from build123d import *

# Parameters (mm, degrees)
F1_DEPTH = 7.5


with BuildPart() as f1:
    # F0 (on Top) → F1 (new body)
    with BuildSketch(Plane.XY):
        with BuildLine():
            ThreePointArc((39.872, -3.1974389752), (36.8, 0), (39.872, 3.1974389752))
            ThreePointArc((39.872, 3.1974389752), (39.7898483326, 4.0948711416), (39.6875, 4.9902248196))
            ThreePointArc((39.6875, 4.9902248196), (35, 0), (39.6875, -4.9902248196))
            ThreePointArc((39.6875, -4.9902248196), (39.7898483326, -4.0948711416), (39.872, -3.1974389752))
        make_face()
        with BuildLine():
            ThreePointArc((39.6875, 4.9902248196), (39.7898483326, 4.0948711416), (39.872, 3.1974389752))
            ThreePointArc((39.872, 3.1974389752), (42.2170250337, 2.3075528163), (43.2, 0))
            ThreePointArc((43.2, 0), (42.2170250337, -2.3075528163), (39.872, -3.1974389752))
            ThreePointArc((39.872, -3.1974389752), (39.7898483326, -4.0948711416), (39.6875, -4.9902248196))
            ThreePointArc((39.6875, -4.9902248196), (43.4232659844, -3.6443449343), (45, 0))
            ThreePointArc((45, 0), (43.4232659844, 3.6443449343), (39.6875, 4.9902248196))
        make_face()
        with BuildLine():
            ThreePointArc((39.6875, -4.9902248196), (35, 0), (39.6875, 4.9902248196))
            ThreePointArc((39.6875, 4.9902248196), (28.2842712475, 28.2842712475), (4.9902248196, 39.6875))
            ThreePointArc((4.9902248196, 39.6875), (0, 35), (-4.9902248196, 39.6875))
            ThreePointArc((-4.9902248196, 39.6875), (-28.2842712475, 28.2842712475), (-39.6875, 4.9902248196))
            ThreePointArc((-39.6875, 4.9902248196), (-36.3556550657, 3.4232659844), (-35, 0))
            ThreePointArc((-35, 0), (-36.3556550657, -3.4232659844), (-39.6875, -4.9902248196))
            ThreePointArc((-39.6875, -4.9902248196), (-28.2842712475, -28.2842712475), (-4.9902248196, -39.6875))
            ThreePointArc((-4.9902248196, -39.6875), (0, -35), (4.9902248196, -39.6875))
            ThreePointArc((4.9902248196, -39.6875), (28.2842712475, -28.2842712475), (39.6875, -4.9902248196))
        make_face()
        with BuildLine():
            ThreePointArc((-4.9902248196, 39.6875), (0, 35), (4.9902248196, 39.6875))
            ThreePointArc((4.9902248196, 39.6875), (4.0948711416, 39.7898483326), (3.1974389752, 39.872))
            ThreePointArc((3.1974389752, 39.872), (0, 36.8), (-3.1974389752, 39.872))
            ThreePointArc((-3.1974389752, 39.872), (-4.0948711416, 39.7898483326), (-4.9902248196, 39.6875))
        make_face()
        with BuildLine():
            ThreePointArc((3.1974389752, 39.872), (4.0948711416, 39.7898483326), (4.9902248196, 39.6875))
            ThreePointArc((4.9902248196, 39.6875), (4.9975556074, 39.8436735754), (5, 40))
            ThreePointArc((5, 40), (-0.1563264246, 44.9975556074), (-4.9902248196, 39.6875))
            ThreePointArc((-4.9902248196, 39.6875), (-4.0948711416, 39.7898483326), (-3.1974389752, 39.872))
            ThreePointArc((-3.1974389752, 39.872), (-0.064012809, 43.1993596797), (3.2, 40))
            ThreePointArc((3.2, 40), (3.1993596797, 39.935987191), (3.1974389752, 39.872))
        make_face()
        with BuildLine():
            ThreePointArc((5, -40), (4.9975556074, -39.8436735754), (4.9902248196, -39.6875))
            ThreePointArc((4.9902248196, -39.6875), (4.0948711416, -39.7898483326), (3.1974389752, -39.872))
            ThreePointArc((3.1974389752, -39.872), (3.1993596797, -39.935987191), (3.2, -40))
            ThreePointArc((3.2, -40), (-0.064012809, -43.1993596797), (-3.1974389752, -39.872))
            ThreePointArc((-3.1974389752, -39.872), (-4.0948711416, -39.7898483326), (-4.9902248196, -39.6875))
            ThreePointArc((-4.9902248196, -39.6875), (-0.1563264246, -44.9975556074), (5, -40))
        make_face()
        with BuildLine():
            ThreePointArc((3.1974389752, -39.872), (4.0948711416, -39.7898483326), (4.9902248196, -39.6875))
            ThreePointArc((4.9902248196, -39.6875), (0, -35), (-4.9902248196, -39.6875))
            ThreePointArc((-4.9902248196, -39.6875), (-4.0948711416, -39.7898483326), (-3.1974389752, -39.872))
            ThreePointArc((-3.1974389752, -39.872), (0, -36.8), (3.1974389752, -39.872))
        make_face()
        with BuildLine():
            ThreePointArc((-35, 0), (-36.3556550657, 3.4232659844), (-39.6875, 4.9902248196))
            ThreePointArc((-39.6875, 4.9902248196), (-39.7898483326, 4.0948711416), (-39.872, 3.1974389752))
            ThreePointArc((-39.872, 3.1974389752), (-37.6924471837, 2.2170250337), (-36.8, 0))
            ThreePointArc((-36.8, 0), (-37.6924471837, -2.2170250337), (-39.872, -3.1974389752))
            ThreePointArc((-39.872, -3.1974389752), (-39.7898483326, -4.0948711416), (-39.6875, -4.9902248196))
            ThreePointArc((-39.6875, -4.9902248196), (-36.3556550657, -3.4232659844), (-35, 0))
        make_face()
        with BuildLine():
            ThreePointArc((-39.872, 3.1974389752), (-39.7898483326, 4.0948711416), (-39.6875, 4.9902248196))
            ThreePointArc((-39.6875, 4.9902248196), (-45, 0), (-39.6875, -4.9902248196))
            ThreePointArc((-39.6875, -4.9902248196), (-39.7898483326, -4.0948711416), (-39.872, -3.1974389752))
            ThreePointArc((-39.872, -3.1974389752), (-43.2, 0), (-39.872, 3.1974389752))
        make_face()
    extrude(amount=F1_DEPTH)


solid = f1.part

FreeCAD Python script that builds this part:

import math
import FreeCAD as App
import Part
import Sketcher

V = App.Vector

doc = App.newDocument("Part")
body = doc.addObject("PartDesign::Body", "Body")

# Sketch on XY plane
sketch1 = body.newObject("Sketcher::SketchObject", "Sketch")
sketch1.AttachmentSupport = (doc.getObject("XY_Plane"), [""])
sketch1.MapMode = "FlatFace"
sketch1.addGeometry(Part.ArcOfCircle(Part.Circle(V(40, 0, 0), V(0, 0, 1), 5), math.radians(-94), math.radians(0)), False)
sketch1.addGeometry(Part.ArcOfCircle(Part.Circle(V(40, 0, 0), V(0, 0, 1), 5), math.radians(0), math.radians(94)), False)
sketch1.addGeometry(Part.ArcOfCircle(Part.Circle(V(0, 0, 0), V(0, 0, 1), 40), math.radians(7), math.radians(83)), False)
sketch1.addGeometry(Part.ArcOfCircle(Part.Circle(V(0, 40, 0), V(0, 0, 1), 5), math.radians(-3.58), math.radians(0)), False)
sketch1.addGeometry(Part.ArcOfCircle(Part.Circle(V(0, 40, 0), V(0, 0, 1), 5), math.radians(0), math.radians(184)), False)
sketch1.addGeometry(Part.ArcOfCircle(Part.Circle(V(0, 0, 0), V(0, 0, 1), 40), math.radians(97), math.radians(173)), False)
sketch1.addGeometry(Part.ArcOfCircle(Part.Circle(V(-40, 0, 0), V(0, 0, 1), 5), math.radians(86), math.radians(274)), False)
sketch1.addGeometry(Part.ArcOfCircle(Part.Circle(V(0, 0, 0), V(0, 0, 1), 40), math.radians(-173), math.radians(-97)), False)
sketch1.addGeometry(Part.ArcOfCircle(Part.Circle(V(0, -40, 0), V(0, 0, 1), 5), math.radians(176), math.radians(360)), False)
sketch1.addGeometry(Part.ArcOfCircle(Part.Circle(V(0, -40, 0), V(0, 0, 1), 5), math.radians(0), math.radians(3.58)), False)
sketch1.addGeometry(Part.ArcOfCircle(Part.Circle(V(0, 0, 0), V(0, 0, 1), 40), math.radians(-83), math.radians(-7)), False)
sketch1.addGeometry(Part.ArcOfCircle(Part.Circle(V(40, 0, 0), V(0, 0, 1), 3.2), math.radians(92), math.radians(268)), False)
sketch1.addGeometry(Part.ArcOfCircle(Part.Circle(V(40, 0, 0), V(0, 0, 1), 3.2), math.radians(0), math.radians(92)), False)
sketch1.addGeometry(Part.ArcOfCircle(Part.Circle(V(40, 0, 0), V(0, 0, 1), 3.2), math.radians(-92), math.radians(0)), False)
sketch1.addGeometry(Part.ArcOfCircle(Part.Circle(V(-40, 0, 0), V(0, 0, 1), 3.2), math.radians(0), math.radians(88)), False)
sketch1.addGeometry(Part.ArcOfCircle(Part.Circle(V(-40, 0, 0), V(0, 0, 1), 3.2), math.radians(-88), math.radians(0)), False)
sketch1.addGeometry(Part.ArcOfCircle(Part.Circle(V(-40, 0, 0), V(0, 0, 1), 3.2), math.radians(88), math.radians(272)), False)
sketch1.addGeometry(Part.ArcOfCircle(Part.Circle(V(0, 40, 0), V(0, 0, 1), 3.2), math.radians(-178), math.radians(-2)), False)
sketch1.addGeometry(Part.ArcOfCircle(Part.Circle(V(0, 40, 0), V(0, 0, 1), 3.2), math.radians(0), math.radians(182)), False)
sketch1.addGeometry(Part.ArcOfCircle(Part.Circle(V(0, 40, 0), V(0, 0, 1), 3.2), math.radians(-2.29), math.radians(0)), False)
sketch1.addGeometry(Part.ArcOfCircle(Part.Circle(V(0, -40, 0), V(0, 0, 1), 3.2), math.radians(2), math.radians(178)), False)
sketch1.addGeometry(Part.ArcOfCircle(Part.Circle(V(0, -40, 0), V(0, 0, 1), 3.2), math.radians(0), math.radians(2.29)), False)
sketch1.addGeometry(Part.ArcOfCircle(Part.Circle(V(0, -40, 0), V(0, 0, 1), 3.2), math.radians(178), math.radians(360)), False)
sketch1.addConstraint(Sketcher.Constraint("Tangent", 0, 2, 1, 1))
sketch1.addConstraint(Sketcher.Constraint("Coincident", 1, 2, 2, 1))
sketch1.addConstraint(Sketcher.Constraint("Coincident", 2, 2, 3, 1))
sketch1.addConstraint(Sketcher.Constraint("Tangent", 3, 2, 4, 1))
sketch1.addConstraint(Sketcher.Constraint("Coincident", 4, 2, 5, 1))
sketch1.addConstraint(Sketcher.Constraint("Coincident", 5, 2, 6, 1))
sketch1.addConstraint(Sketcher.Constraint("Coincident", 6, 2, 7, 1))
sketch1.addConstraint(Sketcher.Constraint("Coincident", 7, 2, 8, 1))
sketch1.addConstraint(Sketcher.Constraint("Tangent", 8, 2, 9, 1))
sketch1.addConstraint(Sketcher.Constraint("Coincident", 9, 2, 10, 1))
sketch1.addConstraint(Sketcher.Constraint("Coincident", 10, 2, 0, 1))
sketch1.addConstraint(Sketcher.Constraint("Tangent", 11, 1, 12, 2))
sketch1.addConstraint(Sketcher.Constraint("Tangent", 12, 1, 13, 2))
sketch1.addConstraint(Sketcher.Constraint("Tangent", 13, 1, 11, 2))
sketch1.addConstraint(Sketcher.Constraint("Tangent", 14, 1, 15, 2))
sketch1.addConstraint(Sketcher.Constraint("Tangent", 15, 1, 16, 2))
sketch1.addConstraint(Sketcher.Constraint("Tangent", 16, 1, 14, 2))
sketch1.addConstraint(Sketcher.Constraint("Tangent", 17, 1, 18, 2))
sketch1.addConstraint(Sketcher.Constraint("Tangent", 18, 1, 19, 2))
sketch1.addConstraint(Sketcher.Constraint("Tangent", 19, 1, 17, 2))
sketch1.addConstraint(Sketcher.Constraint("Tangent", 20, 1, 21, 2))
sketch1.addConstraint(Sketcher.Constraint("Tangent", 21, 1, 22, 2))
sketch1.addConstraint(Sketcher.Constraint("Tangent", 22, 1, 20, 2))
sketch1.addConstraint(Sketcher.Constraint("Coincident", 2, 3, -1, 1))
sketch1.addConstraint(Sketcher.Constraint("Coincident", 5, 3, -1, 1))
sketch1.addConstraint(Sketcher.Constraint("Coincident", 7, 3, -1, 1))
sketch1.addConstraint(Sketcher.Constraint("Coincident", 10, 3, -1, 1))
sketch1.addConstraint(Sketcher.Constraint("Coincident", 11, 3, 0, 3))
sketch1.addConstraint(Sketcher.Constraint("Coincident", 14, 3, 6, 3))
sketch1.addConstraint(Sketcher.Constraint("Coincident", 17, 3, 3, 3))
sketch1.addConstraint(Sketcher.Constraint("Coincident", 20, 3, 8, 3))
sketch1.addConstraint(Sketcher.Constraint("Equal", 0, 1))
sketch1.addConstraint(Sketcher.Constraint("Equal", 1, 3))
sketch1.addConstraint(Sketcher.Constraint("Equal", 3, 4))
sketch1.addConstraint(Sketcher.Constraint("Equal", 2, 5))
sketch1.addConstraint(Sketcher.Constraint("Equal", 4, 6))
sketch1.addConstraint(Sketcher.Constraint("Equal", 5, 7))
sketch1.addConstraint(Sketcher.Constraint("Equal", 6, 8))
sketch1.addConstraint(Sketcher.Constraint("Equal", 8, 9))
sketch1.addConstraint(Sketcher.Constraint("Equal", 7, 10))
sketch1.addConstraint(Sketcher.Constraint("Equal", 13, 14))
sketch1.addConstraint(Sketcher.Constraint("Equal", 16, 17))
sketch1.addConstraint(Sketcher.Constraint("Equal", 19, 20))
sketch1.addConstraint(Sketcher.Constraint("Symmetric", 0, 3, 6, 3, -1, 1))
sketch1.addConstraint(Sketcher.Constraint("Symmetric", 3, 3, 8, 3, -1, 1))
sketch1.addConstraint(Sketcher.Constraint("Symmetric", 13, 1, 15, 1, -2))
sketch1.addConstraint(Sketcher.Constraint("Symmetric", 17, 1, 19, 1, -2))
sketch1.addConstraint(Sketcher.Constraint("PointOnObject", 0, 2, -1))
sketch1.addConstraint(Sketcher.Constraint("PointOnObject", 12, 1, -1))
sketch1.addConstraint(Sketcher.Constraint("PointOnObject", 14, 1, -1))
sketch1.addConstraint(Sketcher.Constraint("Horizontal", 19, 3, 3, 2))
sketch1.addConstraint(Sketcher.Constraint("Horizontal", 22, 3, 8, 2))
sketch1.addConstraint(Sketcher.Constraint("Horizontal", 11, 1, 16, 1))
sketch1.addConstraint(Sketcher.Constraint("Horizontal", 3, 2, 18, 1))
sketch1.addConstraint(Sketcher.Constraint("Horizontal", 8, 2, 21, 1))
sketch1.addConstraint(Sketcher.Constraint("Horizontal", 20, 1, 22, 1))
sketch1.addConstraint(Sketcher.Constraint("Vertical", 11, 1, 13, 1))
sketch1.addConstraint(Sketcher.Constraint("Vertical", 19, 1, 20, 1))
sketch1.addConstraint(Sketcher.Constraint("Radius", 0, 5.0))
sketch1.addConstraint(Sketcher.Constraint("Radius", 2, 40.0))
sketch1.addConstraint(Sketcher.Constraint("Radius", 11, 3.2))
sketch1.addConstraint(Sketcher.Constraint("DistanceX", -1, 1, 0, 3, 40.0))
sketch1.addConstraint(Sketcher.Constraint("DistanceY", -1, 1, 3, 3, 40.0))
sketch1.addConstraint(Sketcher.Constraint("DistanceX", -1, 1, 11, 1, 39.872))
sketch1.addConstraint(Sketcher.Constraint("DistanceY", -1, 1, 17, 1, 39.872))
pad1 = body.newObject("PartDesign::Pad", "Pad")
pad1.Profile = sketch1
pad1.Length = 7.5

doc.recompute()
